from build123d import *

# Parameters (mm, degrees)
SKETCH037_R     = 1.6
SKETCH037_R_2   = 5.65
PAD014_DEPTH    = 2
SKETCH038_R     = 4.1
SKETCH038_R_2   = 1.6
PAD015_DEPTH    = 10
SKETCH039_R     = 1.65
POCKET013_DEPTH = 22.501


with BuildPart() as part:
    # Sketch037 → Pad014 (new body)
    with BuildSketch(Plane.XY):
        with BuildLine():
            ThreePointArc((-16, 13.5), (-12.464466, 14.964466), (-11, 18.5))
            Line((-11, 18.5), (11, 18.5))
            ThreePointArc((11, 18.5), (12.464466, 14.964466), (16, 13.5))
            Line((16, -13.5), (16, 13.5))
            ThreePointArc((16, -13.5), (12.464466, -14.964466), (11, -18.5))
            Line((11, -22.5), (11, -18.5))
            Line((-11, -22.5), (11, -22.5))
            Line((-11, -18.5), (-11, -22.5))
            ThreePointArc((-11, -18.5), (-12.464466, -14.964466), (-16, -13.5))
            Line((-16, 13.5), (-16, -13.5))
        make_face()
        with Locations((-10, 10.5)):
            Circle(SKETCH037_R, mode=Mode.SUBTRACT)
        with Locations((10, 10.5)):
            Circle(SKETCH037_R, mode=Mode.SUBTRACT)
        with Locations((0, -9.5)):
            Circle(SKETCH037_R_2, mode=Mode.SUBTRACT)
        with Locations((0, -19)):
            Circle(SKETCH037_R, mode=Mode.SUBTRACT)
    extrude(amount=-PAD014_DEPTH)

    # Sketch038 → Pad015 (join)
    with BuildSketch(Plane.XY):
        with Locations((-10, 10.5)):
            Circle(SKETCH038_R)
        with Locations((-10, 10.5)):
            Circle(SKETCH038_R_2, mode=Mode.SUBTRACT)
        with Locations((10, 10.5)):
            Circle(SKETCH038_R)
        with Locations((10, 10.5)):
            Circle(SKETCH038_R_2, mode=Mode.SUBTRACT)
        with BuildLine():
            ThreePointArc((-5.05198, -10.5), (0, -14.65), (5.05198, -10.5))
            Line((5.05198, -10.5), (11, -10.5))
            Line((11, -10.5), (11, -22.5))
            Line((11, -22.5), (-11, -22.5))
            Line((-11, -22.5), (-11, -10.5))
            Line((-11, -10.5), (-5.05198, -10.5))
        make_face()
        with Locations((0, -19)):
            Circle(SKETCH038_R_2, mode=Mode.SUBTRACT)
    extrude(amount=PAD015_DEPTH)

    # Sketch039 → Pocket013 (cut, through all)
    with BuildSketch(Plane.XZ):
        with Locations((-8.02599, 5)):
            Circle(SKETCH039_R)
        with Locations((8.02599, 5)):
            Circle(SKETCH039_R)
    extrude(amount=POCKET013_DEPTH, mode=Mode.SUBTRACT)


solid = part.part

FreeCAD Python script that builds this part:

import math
import FreeCAD as App
import Part
import Sketcher
from FreeCAD import Vector
Q = App.Units.Quantity

doc = App.newDocument("Part")
body = doc.addObject("PartDesign::Body", "Body")

# Sketch on XY plane
sketch1 = body.newObject("Sketcher::SketchObject", "Sketch")
sketch1.AttachmentSupport = (doc.getObject("XY_Plane"), [""])
sketch1.MapMode = "FlatFace"
sketch1.addGeometry([
    Part.ArcOfCircle(Part.Circle(Vector(-16, 18.5, 0), Vector(0, 0, 1), 5), math.radians(-90), math.radians(0)),  # 0
    Part.LineSegment(Vector(-16, 13.5, 0), Vector(-16, -13.5, 0)),  # 1
    Part.ArcOfCircle(Part.Circle(Vector(-16, -18.5, 0), Vector(0, 0, 1), 5), math.radians(0), math.radians(90)),  # 2
    Part.LineSegment(Vector(-11, -18.5, 0), Vector(-11, -22.5, 0)),  # 3
    Part.LineSegment(Vector(-11, -22.5, 0), Vector(11, -22.5, 0)),  # 4
    Part.LineSegment(Vector(11, -22.5, 0), Vector(11, -18.5, 0)),  # 5
    Part.ArcOfCircle(Part.Circle(Vector(16, -18.5, 0), Vector(0, 0, 1), 5), math.radians(90), math.radians(180)),  # 6
    Part.LineSegment(Vector(16, -13.5, 0), Vector(16, 13.5, 0)),  # 7
    Part.ArcOfCircle(Part.Circle(Vector(16, 18.5, 0), Vector(0, 0, 1), 5), math.radians(180), math.radians(270)),  # 8
    Part.LineSegment(Vector(11, 18.5, 0), Vector(-11, 18.5, 0)),  # 9
    Part.Circle(Vector(0, -19, 0), Vector(0, 0, 1), 1.6),  # 10
    Part.Circle(Vector(0, -9.5, 0), Vector(0, 0, 1), 5.7),  # 11
    Part.Circle(Vector(10, 10.5, 0), Vector(0, 0, 1), 1.6),  # 12
    Part.Circle(Vector(-10, 10.5, 0), Vector(0, 0, 1), 1.6),  # 13
], False)
sketch1.addConstraint([
    Sketcher.Constraint("Coincident", 0, 1, 1, 1),
    Sketcher.Constraint("Coincident", 1, 2, 2, 2),
    Sketcher.Constraint("Tangent", 2, 1, 3, 1),
    Sketcher.Constraint("Coincident", 3, 2, 4, 1),
    Sketcher.Constraint("Coincident", 4, 2, 5, 1),
    Sketcher.Constraint("Tangent", 5, 2, 6, 2),
    Sketcher.Constraint("Coincident", 6, 1, 7, 1),
    Sketcher.Constraint("Coincident", 7, 2, 8, 2),
    Sketcher.Constraint("Coincident", 8, 1, 9, 1),
    Sketcher.Constraint("Coincident", 9, 2, 0, 2),
    Sketcher.Constraint("Vertical", 1),
    Sketcher.Constraint("Vertical", 3),
    Sketcher.Constraint("Horizontal", 4),
    Sketcher.Constraint("Vertical", 5),
    Sketcher.Constraint("Vertical", 7),
    Sketcher.Constraint("Horizontal", 9),
    Sketcher.Constraint("Equal", 0, 2),
    Sketcher.Constraint("Equal", 2, 6),
    Sketcher.Constraint("Equal", 6, 8),
    Sketcher.Constraint("Equal", 10, 12),
    Sketcher.Constraint("Equal", 12, 13),
    Sketcher.Constraint("Symmetric", 0, 3, 6, 3, -1, 1),
    Sketcher.Constraint("Symmetric", 2, 3, 8, 3, -1, 1),
    Sketcher.Constraint("Symmetric", 2, 3, 6, 3, -2),
    Sketcher.Constraint("Symmetric", 12, 3, 13, 3, -2),
    Sketcher.Constraint("PointOnObject", 10, 3, -2),
    Sketcher.Constraint("PointOnObject", 11, 3, -2),
    Sketcher.Constraint("Horizontal", 0, 3, 8, 1),
    Sketcher.Constraint("Vertical", 2, 3, 0, 1),
    Sketcher.Constraint("Vertical", 8, 3, 6, 1),
    Sketcher.Constraint("Radius", 0, Q("5 mm")),
    Sketcher.Constraint("Diameter", 10, Q("3.2 mm")),
    Sketcher.Constraint("Diameter", 11, Q("11.3 mm")),
    Sketcher.Constraint("DistanceX", 4, 1, 4, 2, Q("22 mm")),
    Sketcher.Constraint("DistanceY", 1, 2, 1, 1, Q("27 mm")),
    Sketcher.Constraint("DistanceY", 3, 2, 3, 1, Q("4 mm")),
    Sketcher.Constraint("DistanceY", 10, 3, -1, 1, Q("19 mm")),
    Sketcher.Constraint("DistanceX", -1, 1, 12, 3, Q("10 mm")),
    Sketcher.Constraint("DistanceY", 2, 3, 11, 3, Q("9 mm")),
    Sketcher.Constraint("DistanceY", 12, 3, 8, 3, Q("8 mm")),
])
pad1 = body.newObject("PartDesign::Pad", "Pad")
pad1.Profile = sketch1
pad1.Length = 2
pad1.Reversed = True

# Sketch on XY plane
sketch2 = body.newObject("Sketcher::SketchObject", "Sketch001")
sketch2.AttachmentSupport = (doc.getObject("XY_Plane"), [""])
sketch2.MapMode = "FlatFace"
sketch2.addGeometry([
    Part.Circle(Vector(-10, 10.5, 0), Vector(0, 0, 1), 4.1),  # 0
    Part.Circle(Vector(-10, 10.5, 0), Vector(0, 0, 1), 1.6),  # 1
    Part.Circle(Vector(10, 10.5, 0), Vector(0, 0, 1), 4.1),  # 2
    Part.Circle(Vector(10, 10.5, 0), Vector(0, 0, 1), 1.6),  # 3
    Part.ArcOfCircle(Part.Circle(Vector(0, -9.5, 0), Vector(0, 0, 1), 5.2), math.radians(-169), math.radians(-11)),  # 4
    Part.LineSegment(Vector(-5.1, -10.5, 0), Vector(-11, -10.5, 0)),  # 5
    Part.LineSegment(Vector(-11, -10.5, 0), Vector(-11, -22.5, 0)),  # 6
    Part.LineSegment(Vector(-11, -22.5, 0), Vector(11, -22.5, 0)),  # 7
    Part.LineSegment(Vector(11, -22.5, 0), Vector(11, -10.5, 0)),  # 8
    Part.LineSegment(Vector(11, -10.5, 0), Vector(5.1, -10.5, 0)),  # 9
    Part.Circle(Vector(0, -19, 0), Vector(0, 0, 1), 1.6),  # 10
], False)
sketch2.addConstraint([
    Sketcher.Constraint("Coincident", 4, 1, 5, 1),
    Sketcher.Constraint("Coincident", 5, 2, 6, 1),
    Sketcher.Constraint("Coincident", 6, 2, 7, 1),
    Sketcher.Constraint("Coincident", 7, 2, 8, 1),
    Sketcher.Constraint("Coincident", 8, 2, 9, 1),
    Sketcher.Constraint("Coincident", 9, 2, 4, 2),
    Sketcher.Constraint("Horizontal", 5),
    Sketcher.Constraint("Vertical", 6),
    Sketcher.Constraint("Horizontal", 7),
    Sketcher.Constraint("Vertical", 8),
    Sketcher.Constraint("Horizontal", 9),
    Sketcher.Constraint("Coincident", 1, 3, 0, 3),
    Sketcher.Constraint("Coincident", 3, 3, 2, 3),
    Sketcher.Constraint("Equal", 0, 2),
    Sketcher.Constraint("Equal", 1, 3),
    Sketcher.Constraint("Equal", 3, 10),
    Sketcher.Constraint("Symmetric", 0, 3, 2, 3, -2),
    Sketcher.Constraint("Symmetric", 5, 2, 8, 2, -2),
    Sketcher.Constraint("PointOnObject", 4, 3, -2),
    Sketcher.Constraint("PointOnObject", 10, 3, -2),
    Sketcher.Constraint("Diameter", 0, Q("8.2 mm")),
    Sketcher.Constraint("Diameter", 1, Q("3.2 mm")),
    Sketcher.Constraint("DistanceX", 7, 1, 7, 2, Q("22 mm")),
    Sketcher.Constraint("DistanceY", 6, 2, 6, 1, Q("12 mm")),
    Sketcher.Constraint("Radius", 4, Q("5.15 mm")),
    Sketcher.Constraint("DistanceX", 0, 3, -1, 1, Q("10 mm")),
    Sketcher.Constraint("DistanceY", 10, 3, -1, 1, Q("19 mm")),
    Sketcher.Constraint("DistanceY", 4, 3, 0, 3, Q("20 mm")),
    Sketcher.Constraint("DistanceY", 4, 1, 4, 3, Q("1 mm")),
    Sketcher.Constraint("DistanceY", -1, 1, 0, 3, Q("10.5 mm")),
])
pad2 = body.newObject("PartDesign::Pad", "Pad001")
pad2.Profile = sketch2
pad2.Length = 10

# Sketch on XZ plane
sketch3 = body.newObject("Sketcher::SketchObject", "Sketch002")
sketch3.AttachmentSupport = (doc.getObject("XZ_Plane"), [""])
sketch3.MapMode = "FlatFace"
sketch3.addGeometry([
    Part.Circle(Vector(-8, 5, 0), Vector(0, 0, 1), 1.6),
    Part.Circle(Vector(8, 5, 0), Vector(0, 0, 1), 1.6),
], False)
sketch3.addConstraint([
    Sketcher.Constraint("Equal", 0, 1),
    Sketcher.Constraint("Symmetric", 0, 3, 1, 3, -2),
    Sketcher.Constraint("Diameter", 0, Q("3.3 mm")),
    Sketcher.Constraint("DistanceY", -1, 1, 0, 3, Q("5 mm")),
    Sketcher.Constraint("DistanceX", 0, 3, -1, 1, Q("8.02599 mm")),
])
pocket1 = body.newObject("PartDesign::Pocket", "Pocket")
pocket1.Profile = sketch3
pocket1.Type = "ThroughAll"
pocket1.Reversed = True

doc.recompute()
